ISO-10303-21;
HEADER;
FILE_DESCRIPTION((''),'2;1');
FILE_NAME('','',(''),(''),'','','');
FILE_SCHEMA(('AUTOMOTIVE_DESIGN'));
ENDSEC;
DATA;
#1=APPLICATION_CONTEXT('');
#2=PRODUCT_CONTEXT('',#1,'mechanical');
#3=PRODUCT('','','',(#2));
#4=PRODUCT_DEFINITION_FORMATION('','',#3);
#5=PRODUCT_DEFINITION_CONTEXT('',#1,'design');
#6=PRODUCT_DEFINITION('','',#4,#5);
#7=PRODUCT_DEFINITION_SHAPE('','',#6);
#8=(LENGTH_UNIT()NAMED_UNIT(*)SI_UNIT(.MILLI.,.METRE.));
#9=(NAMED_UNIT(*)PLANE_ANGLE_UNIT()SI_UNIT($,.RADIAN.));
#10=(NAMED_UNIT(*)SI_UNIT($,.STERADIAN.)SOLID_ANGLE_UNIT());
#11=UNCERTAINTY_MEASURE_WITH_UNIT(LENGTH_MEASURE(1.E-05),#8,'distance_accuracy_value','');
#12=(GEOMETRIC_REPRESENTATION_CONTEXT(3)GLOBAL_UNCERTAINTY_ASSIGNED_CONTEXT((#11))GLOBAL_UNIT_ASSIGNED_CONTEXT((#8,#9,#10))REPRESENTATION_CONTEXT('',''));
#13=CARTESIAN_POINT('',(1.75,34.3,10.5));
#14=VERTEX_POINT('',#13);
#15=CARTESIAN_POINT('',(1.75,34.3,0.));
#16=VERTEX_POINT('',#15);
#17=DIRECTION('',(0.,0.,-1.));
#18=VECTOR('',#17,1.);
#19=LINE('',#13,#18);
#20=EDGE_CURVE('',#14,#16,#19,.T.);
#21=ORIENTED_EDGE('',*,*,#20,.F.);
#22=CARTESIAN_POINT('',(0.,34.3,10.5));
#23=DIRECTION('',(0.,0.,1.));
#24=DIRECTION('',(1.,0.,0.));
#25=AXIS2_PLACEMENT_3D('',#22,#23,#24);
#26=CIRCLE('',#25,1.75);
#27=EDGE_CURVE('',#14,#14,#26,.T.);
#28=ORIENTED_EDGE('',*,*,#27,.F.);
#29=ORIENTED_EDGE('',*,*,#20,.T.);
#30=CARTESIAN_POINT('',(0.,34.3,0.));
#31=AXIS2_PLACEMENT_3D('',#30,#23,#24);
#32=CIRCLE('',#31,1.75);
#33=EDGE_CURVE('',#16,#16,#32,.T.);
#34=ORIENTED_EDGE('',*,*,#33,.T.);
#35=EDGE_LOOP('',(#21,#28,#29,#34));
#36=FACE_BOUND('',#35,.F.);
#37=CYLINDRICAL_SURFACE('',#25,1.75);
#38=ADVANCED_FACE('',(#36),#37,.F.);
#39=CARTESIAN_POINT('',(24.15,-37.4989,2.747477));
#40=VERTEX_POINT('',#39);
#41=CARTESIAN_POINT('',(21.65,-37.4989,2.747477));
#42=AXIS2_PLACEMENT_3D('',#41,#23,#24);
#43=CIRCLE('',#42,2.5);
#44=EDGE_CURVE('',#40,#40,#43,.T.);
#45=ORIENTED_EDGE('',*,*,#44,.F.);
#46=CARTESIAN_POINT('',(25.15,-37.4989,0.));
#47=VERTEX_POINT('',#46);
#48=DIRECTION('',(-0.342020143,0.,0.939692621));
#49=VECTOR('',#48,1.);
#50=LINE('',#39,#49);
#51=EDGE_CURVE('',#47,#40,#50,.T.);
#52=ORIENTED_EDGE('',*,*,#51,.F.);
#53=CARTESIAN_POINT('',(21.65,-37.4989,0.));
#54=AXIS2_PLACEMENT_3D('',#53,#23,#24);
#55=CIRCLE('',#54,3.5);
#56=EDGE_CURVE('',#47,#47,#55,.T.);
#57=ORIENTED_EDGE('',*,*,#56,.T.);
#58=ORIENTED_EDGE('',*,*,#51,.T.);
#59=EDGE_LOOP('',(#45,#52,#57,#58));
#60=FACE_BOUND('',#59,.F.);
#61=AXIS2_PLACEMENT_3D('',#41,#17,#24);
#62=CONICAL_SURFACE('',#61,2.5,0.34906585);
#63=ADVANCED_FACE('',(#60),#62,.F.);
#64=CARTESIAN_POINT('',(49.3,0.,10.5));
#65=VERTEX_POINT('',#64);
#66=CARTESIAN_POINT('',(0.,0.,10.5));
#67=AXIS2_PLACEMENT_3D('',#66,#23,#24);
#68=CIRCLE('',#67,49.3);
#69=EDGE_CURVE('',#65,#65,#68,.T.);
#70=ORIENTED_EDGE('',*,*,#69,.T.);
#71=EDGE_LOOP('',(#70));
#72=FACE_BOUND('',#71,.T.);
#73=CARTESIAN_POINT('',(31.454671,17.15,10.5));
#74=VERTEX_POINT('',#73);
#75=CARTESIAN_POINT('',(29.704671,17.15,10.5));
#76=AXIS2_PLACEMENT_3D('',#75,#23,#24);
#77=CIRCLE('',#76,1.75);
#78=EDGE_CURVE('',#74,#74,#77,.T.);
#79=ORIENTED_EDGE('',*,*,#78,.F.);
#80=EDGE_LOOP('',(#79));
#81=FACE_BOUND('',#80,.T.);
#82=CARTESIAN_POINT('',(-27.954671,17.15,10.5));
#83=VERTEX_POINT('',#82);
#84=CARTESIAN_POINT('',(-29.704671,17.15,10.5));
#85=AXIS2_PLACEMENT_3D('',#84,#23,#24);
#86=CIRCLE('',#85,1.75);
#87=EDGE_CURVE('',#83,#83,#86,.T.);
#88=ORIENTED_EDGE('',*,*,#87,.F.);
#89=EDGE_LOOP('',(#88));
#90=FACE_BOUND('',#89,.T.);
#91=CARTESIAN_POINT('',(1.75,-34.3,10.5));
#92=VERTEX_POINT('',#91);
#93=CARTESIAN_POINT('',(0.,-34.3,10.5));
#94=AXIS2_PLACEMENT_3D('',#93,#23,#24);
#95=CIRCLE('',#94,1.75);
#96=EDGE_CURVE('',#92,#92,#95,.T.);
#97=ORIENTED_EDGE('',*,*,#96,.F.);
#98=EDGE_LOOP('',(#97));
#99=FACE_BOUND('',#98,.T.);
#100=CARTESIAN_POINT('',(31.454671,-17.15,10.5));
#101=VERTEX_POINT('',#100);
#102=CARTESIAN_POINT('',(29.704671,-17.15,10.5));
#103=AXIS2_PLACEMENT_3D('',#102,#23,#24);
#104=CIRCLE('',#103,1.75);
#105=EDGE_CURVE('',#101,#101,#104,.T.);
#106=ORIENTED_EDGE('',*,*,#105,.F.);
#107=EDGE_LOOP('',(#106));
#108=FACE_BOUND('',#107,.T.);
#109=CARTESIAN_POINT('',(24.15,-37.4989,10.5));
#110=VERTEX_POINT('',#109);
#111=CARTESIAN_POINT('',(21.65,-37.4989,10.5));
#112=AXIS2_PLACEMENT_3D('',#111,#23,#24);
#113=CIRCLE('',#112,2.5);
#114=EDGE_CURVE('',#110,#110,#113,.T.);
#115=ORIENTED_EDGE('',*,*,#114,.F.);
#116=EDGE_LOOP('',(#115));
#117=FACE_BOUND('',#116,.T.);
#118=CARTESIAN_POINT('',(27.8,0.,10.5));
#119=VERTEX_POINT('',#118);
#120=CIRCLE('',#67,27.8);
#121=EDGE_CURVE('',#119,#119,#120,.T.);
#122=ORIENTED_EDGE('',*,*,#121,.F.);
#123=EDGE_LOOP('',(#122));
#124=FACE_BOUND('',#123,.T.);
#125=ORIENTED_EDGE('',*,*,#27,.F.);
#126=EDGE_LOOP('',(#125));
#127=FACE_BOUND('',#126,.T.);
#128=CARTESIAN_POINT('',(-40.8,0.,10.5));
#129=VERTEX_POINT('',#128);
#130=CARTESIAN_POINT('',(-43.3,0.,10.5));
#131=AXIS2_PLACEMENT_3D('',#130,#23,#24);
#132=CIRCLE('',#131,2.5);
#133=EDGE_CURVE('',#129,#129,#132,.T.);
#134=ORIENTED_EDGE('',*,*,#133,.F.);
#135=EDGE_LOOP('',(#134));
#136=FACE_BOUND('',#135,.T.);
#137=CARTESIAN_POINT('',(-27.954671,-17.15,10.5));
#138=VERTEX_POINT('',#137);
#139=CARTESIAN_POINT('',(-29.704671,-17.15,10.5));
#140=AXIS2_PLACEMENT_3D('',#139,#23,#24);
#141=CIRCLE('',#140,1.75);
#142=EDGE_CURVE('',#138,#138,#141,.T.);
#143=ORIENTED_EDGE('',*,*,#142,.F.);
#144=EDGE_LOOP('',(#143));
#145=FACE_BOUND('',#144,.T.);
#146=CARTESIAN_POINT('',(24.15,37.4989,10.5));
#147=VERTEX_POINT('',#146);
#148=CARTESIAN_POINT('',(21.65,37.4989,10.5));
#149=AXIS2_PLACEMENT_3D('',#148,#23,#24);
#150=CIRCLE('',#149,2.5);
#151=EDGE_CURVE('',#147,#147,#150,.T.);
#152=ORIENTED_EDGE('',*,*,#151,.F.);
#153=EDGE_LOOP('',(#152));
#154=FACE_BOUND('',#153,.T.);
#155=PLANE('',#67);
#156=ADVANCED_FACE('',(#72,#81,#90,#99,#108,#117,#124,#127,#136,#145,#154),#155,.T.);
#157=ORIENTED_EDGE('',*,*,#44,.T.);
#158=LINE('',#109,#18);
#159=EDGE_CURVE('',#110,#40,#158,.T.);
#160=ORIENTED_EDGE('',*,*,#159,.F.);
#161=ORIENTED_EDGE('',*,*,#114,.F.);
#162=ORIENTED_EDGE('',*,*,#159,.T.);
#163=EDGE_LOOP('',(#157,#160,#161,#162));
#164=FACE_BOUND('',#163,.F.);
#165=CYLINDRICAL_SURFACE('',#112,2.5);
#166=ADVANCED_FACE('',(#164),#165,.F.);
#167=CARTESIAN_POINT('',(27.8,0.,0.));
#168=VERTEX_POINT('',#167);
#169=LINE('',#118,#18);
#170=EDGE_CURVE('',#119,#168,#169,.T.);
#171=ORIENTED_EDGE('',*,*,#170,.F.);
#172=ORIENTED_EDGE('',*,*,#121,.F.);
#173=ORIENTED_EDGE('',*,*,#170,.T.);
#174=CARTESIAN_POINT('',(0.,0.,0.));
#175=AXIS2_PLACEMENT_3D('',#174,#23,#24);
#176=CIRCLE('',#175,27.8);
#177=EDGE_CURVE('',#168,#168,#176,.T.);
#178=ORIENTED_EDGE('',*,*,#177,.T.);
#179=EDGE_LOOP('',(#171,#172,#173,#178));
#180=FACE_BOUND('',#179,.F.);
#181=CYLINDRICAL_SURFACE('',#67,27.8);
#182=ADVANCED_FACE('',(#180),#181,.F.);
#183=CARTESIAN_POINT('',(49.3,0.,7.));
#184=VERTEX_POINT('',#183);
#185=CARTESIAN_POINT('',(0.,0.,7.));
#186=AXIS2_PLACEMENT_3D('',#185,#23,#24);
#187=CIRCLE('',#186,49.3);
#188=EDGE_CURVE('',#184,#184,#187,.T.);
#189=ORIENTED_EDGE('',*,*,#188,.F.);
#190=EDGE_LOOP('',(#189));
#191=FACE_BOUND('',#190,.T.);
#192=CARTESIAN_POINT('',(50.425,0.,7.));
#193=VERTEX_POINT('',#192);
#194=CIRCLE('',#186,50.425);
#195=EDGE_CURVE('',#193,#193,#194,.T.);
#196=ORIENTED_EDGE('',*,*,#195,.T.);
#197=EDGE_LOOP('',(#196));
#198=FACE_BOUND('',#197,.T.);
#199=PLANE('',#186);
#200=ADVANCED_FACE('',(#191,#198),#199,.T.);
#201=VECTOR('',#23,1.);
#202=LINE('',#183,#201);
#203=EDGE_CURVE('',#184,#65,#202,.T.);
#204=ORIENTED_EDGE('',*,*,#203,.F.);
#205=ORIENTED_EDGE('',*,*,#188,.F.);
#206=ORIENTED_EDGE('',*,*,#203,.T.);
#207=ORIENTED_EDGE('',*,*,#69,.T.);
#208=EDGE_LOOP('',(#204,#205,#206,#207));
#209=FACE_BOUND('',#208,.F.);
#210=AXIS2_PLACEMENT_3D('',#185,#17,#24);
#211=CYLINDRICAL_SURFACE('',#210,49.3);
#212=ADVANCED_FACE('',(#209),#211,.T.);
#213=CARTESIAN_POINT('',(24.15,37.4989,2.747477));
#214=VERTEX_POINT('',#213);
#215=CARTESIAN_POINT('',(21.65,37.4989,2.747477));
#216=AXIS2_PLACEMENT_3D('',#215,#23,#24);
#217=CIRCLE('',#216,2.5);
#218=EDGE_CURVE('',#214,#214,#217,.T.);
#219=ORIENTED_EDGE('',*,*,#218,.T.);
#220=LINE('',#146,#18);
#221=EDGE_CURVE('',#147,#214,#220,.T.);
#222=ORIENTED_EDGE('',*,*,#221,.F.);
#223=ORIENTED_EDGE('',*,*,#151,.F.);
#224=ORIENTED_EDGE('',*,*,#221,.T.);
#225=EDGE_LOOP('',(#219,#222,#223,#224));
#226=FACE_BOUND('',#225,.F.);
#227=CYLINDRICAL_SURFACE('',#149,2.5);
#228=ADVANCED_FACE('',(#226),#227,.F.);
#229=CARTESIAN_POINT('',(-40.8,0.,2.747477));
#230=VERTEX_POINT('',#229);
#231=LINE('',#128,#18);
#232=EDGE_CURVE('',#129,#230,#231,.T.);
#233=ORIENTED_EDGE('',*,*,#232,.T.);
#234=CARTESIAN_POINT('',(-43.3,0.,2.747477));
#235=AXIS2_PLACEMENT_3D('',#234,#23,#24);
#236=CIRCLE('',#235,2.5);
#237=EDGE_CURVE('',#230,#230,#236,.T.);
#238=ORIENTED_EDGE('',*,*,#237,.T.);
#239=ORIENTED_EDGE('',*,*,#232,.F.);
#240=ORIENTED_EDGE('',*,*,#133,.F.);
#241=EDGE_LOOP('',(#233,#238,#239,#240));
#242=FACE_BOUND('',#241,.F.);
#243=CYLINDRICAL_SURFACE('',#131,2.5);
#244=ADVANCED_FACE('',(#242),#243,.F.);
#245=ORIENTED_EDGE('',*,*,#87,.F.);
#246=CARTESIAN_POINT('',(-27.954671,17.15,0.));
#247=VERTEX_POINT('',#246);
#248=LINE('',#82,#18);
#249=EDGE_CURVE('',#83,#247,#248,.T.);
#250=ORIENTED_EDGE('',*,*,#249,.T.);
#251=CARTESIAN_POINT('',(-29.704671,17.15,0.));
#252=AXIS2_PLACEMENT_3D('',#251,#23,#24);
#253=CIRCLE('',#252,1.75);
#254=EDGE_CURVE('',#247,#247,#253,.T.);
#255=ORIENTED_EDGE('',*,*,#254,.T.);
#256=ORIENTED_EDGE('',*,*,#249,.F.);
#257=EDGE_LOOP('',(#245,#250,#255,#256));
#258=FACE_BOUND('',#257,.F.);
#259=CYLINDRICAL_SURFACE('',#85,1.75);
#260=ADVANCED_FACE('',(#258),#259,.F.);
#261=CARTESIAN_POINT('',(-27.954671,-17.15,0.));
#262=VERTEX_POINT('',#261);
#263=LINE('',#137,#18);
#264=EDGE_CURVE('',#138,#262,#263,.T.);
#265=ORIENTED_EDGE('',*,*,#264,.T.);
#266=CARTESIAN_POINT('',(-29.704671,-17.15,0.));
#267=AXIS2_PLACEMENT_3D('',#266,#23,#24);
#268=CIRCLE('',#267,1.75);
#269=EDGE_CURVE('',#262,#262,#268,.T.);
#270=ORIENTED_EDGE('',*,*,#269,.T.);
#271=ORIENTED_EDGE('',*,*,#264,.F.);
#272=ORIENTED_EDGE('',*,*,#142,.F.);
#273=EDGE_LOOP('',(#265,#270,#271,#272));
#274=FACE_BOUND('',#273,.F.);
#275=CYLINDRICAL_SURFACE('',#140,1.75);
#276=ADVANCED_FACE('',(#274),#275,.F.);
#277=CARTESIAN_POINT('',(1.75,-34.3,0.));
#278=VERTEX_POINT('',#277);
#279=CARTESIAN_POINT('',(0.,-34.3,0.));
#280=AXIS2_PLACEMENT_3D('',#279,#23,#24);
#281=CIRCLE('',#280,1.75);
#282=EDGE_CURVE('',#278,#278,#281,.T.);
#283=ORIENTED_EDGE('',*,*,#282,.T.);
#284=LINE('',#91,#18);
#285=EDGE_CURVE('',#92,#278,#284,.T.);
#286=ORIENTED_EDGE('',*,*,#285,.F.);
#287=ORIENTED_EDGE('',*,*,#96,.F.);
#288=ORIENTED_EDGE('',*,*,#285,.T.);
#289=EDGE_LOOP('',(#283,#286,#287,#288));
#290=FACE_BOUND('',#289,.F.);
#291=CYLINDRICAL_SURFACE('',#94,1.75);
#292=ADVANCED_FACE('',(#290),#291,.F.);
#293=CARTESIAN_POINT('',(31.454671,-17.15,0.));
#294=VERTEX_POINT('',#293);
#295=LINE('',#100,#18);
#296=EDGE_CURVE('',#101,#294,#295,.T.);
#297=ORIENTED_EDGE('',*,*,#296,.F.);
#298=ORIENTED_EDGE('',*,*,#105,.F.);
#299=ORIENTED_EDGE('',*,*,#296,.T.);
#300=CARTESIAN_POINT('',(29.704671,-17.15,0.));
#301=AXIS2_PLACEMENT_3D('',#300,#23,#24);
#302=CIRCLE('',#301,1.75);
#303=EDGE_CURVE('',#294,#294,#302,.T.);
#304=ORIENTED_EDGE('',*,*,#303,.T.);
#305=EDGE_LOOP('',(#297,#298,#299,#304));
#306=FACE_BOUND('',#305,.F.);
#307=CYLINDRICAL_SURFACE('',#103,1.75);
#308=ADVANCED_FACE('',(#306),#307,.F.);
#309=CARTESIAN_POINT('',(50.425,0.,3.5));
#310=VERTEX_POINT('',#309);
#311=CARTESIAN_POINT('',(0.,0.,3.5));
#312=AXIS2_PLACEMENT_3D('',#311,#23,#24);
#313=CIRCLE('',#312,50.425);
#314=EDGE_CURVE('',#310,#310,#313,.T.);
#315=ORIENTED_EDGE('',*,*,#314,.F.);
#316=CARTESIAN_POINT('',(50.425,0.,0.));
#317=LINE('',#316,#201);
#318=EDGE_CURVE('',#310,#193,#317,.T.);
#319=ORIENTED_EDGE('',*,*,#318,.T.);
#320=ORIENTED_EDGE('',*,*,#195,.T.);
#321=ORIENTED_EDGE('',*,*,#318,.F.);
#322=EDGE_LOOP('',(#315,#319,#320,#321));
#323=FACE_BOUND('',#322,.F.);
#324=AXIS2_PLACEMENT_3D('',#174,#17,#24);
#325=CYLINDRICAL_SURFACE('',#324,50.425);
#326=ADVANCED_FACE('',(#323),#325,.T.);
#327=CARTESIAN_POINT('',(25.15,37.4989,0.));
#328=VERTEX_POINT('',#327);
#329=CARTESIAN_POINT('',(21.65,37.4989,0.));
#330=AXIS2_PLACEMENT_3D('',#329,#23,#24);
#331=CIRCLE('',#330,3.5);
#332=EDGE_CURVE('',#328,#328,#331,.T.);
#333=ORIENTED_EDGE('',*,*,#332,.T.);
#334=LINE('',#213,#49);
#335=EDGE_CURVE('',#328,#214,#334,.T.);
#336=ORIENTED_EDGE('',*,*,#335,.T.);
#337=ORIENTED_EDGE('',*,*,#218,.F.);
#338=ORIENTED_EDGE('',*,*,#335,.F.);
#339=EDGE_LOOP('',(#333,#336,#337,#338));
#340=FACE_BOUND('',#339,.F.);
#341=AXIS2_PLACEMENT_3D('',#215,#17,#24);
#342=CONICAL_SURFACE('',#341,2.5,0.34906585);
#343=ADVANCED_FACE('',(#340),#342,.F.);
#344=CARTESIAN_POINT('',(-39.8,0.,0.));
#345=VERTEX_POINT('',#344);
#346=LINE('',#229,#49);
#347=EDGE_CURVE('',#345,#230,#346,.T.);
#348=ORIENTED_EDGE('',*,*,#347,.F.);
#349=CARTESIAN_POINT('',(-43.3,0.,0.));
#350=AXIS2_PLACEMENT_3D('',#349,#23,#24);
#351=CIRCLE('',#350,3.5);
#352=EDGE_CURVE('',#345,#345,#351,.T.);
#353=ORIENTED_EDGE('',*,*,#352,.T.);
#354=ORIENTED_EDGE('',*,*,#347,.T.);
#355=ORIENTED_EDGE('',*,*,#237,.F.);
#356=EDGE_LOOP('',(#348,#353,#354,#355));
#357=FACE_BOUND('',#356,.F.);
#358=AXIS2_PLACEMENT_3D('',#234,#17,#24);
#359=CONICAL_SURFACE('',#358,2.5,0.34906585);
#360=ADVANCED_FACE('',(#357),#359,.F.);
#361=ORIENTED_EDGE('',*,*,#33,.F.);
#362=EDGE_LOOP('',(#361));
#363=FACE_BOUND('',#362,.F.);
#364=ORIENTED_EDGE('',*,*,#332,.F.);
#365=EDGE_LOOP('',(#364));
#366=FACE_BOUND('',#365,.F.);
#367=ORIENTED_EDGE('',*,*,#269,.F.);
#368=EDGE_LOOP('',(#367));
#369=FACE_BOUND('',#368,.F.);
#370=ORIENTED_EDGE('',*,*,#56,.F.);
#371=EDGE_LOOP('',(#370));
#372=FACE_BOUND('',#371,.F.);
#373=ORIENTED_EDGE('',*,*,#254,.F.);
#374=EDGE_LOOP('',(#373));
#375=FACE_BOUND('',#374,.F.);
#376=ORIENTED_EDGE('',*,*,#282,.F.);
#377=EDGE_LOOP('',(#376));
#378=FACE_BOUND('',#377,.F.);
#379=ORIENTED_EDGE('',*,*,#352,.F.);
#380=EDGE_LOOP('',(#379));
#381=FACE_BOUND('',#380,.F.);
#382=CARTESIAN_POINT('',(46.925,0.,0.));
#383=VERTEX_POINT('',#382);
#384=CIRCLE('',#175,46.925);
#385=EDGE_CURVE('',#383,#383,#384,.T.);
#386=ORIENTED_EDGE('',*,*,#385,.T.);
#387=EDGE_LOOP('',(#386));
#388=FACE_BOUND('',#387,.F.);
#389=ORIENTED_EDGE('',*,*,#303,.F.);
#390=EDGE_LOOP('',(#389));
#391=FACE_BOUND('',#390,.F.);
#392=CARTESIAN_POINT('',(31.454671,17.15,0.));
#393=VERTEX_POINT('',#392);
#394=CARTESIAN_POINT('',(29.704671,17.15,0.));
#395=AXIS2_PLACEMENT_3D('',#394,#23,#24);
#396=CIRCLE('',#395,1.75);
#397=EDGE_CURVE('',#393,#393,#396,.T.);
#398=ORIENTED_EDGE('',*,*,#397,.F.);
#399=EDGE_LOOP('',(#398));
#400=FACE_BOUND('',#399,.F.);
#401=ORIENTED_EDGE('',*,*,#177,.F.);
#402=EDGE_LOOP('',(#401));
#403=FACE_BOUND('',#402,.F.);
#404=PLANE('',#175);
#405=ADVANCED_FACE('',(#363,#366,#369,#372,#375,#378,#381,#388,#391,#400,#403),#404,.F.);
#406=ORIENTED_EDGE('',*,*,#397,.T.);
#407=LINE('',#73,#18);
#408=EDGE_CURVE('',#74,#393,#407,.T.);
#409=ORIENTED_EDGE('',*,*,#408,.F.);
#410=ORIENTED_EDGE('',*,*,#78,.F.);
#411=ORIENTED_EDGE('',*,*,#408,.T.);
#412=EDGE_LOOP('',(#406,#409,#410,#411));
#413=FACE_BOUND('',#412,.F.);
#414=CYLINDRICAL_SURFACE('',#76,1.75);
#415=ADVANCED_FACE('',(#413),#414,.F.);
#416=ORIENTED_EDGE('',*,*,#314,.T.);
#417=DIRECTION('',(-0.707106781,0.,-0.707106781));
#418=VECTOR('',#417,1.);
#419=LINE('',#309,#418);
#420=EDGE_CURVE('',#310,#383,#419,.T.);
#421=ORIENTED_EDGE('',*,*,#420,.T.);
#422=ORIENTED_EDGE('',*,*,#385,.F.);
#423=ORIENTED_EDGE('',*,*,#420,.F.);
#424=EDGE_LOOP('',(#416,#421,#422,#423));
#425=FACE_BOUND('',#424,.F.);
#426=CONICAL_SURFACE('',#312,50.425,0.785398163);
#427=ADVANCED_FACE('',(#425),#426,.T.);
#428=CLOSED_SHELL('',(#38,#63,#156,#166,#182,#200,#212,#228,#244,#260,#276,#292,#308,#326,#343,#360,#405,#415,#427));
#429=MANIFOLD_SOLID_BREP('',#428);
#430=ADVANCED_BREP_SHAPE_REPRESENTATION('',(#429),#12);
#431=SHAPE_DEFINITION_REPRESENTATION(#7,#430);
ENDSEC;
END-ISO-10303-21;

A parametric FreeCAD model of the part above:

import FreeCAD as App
import Part
import Sketcher
Q = App.Units.Quantity


def edges_at(feature, points):
    """Names of the edges that pass closest to the given points."""
    edges = feature.Shape.Edges
    near = lambda p: min(range(len(edges)), key=lambda i: edges[i].distToShape(Part.Vertex(*p))[0])
    return sorted({f"Edge{near(p) + 1}" for p in points})

doc = App.newDocument("Part")
params = doc.addObject("Spreadsheet::Sheet", "Params")
for row, (alias, value) in enumerate([
    ("sketch1_diameter", "100.85 mm"),
    ("pad1_length", "7 mm"),
    ("sketch2_diameter", "98.6 mm"),
    ("pad2_length", "3.5 mm"),
    ("chamfer_size", "3.5 mm"),
    ("sketch3_diameter", "5 mm"),
    ("sketch3_diameter2", "55.6 mm"),
    ("sketch3_diameter3", "3.5 mm"),
    ("chamfer2_size", "1 mm"),
], start=1):
    params.set(f"A{row}", alias)
    params.set(f"B{row}", "=" + value)
    params.setAlias(f"B{row}", alias)

body = doc.addObject("PartDesign::Body", "Body")

sketch1 = body.newObject("Sketcher::SketchObject", "Sketch")
sketch1.AttachmentSupport = (doc.getObject("XY_Plane"), [""])
sketch1.MapMode = "FlatFace"
sketch1.addGeometry(Part.Circle(App.Vector(0, 0, 0), App.Vector(0, 0, 1), 50), False)
sketch1.addConstraint(Sketcher.Constraint("Coincident", 0, 3, -1, 1))
sketch1.addConstraint(Sketcher.Constraint("Diameter", 0, Q("100.85 mm")))
sketch1.setExpression("Constraints[1]", "Params.sketch1_diameter")
pad1 = body.newObject("PartDesign::Pad", "Pad")
pad1.Profile = sketch1
pad1.setExpression("Length", "Params.pad1_length")

sketch2 = body.newObject("Sketcher::SketchObject", "Sketch001")
sketch2.AttachmentSupport = (doc.getObject("XY_Plane"), [""])
sketch2.MapMode = "FlatFace"
sketch2.AttachmentOffset = App.Placement(App.Vector(0, 0, 7), App.Rotation())
sketch2.addGeometry(Part.Circle(App.Vector(0, 0, 0), App.Vector(0, 0, 1), 49), False)
sketch2.addConstraint(Sketcher.Constraint("Coincident", 0, 3, -1, 1))
sketch2.addConstraint(Sketcher.Constraint("Diameter", 0, Q("98.6 mm")))
sketch2.setExpression("Constraints[1]", "Params.sketch2_diameter")
pad2 = body.newObject("PartDesign::Pad", "Pad001")
pad2.Profile = sketch2
pad2.setExpression("Length", "Params.pad2_length")
doc.recompute()

chamfer = body.newObject("PartDesign::Chamfer", "Chamfer")
chamfer.Base = (pad2, edges_at(pad2, [(-50.425, 0, 0)]))
chamfer.setExpression("Size", "Params.chamfer_size")

sketch3 = body.newObject("Sketcher::SketchObject", "Sketch002")
sketch3.AttachmentSupport = (doc.getObject("XY_Plane"), [""])
sketch3.MapMode = "FlatFace"
sketch3.AttachmentOffset = App.Placement(App.Vector(0, 0, 10.5), App.Rotation())
sketch3.addGeometry(Part.Circle(App.Vector(0, 0, 0), App.Vector(0, 0, 1), 27.8), False)
sketch3.addGeometry(Part.Circle(App.Vector(-43.3, 0, 0), App.Vector(0, 0, 1), 2.5), False)
sketch3.addGeometry(Part.Circle(App.Vector(21.6, 37.5, 0), App.Vector(0, 0, 1), 2.5), False)
sketch3.addGeometry(Part.Circle(App.Vector(21.6, -37.5, 0), App.Vector(0, 0, 1), 2.5), False)
sketch3.addGeometry(Part.Circle(App.Vector(-29.7, 17.1, 0), App.Vector(0, 0, 1), 1.8), False)
sketch3.addGeometry(Part.Circle(App.Vector(0, 34.3, 0), App.Vector(0, 0, 1), 1.8), False)
sketch3.addGeometry(Part.Circle(App.Vector(29.7, 17.1, 0), App.Vector(0, 0, 1), 1.8), False)
sketch3.addGeometry(Part.Circle(App.Vector(29.7, -17.1, 0), App.Vector(0, 0, 1), 1.8), False)
sketch3.addGeometry(Part.Circle(App.Vector(0, -34.3, 0), App.Vector(0, 0, 1), 1.8), False)
sketch3.addGeometry(Part.Circle(App.Vector(-29.7, -17.1, 0), App.Vector(0, 0, 1), 1.8), False)
sketch3.addConstraint(Sketcher.Constraint("Coincident", 0, 3, -1, 1))
sketch3.addConstraint(Sketcher.Constraint("Equal", 1, 2))
sketch3.addConstraint(Sketcher.Constraint("Equal", 2, 3))
sketch3.addConstraint(Sketcher.Constraint("Equal", 4, 5))
sketch3.addConstraint(Sketcher.Constraint("Equal", 5, 6))
sketch3.addConstraint(Sketcher.Constraint("Equal", 6, 7))
sketch3.addConstraint(Sketcher.Constraint("Equal", 7, 8))
sketch3.addConstraint(Sketcher.Constraint("Equal", 8, 9))
sketch3.addConstraint(Sketcher.Constraint("Symmetric", 4, 3, 7, 3, -1, 1))
sketch3.addConstraint(Sketcher.Constraint("Symmetric", 5, 3, 8, 3, -1, 1))
sketch3.addConstraint(Sketcher.Constraint("Symmetric", 6, 3, 9, 3, -1, 1))
sketch3.addConstraint(Sketcher.Constraint("Symmetric", 4, 3, 6, 3, -2))
sketch3.addConstraint(Sketcher.Constraint("Symmetric", 2, 3, 3, 3, -1))
sketch3.addConstraint(Sketcher.Constraint("PointOnObject", 1, 3, -1))
sketch3.addConstraint(Sketcher.Constraint("PointOnObject", 5, 3, -2))
sketch3.addConstraint(Sketcher.Constraint("Diameter", 1, Q("5 mm")))
sketch3.addConstraint(Sketcher.Constraint("Diameter", 0, Q("55.6 mm")))
sketch3.addConstraint(Sketcher.Constraint("Diameter", 4, Q("3.5 mm")))
sketch3.addConstraint(Sketcher.Constraint("DistanceX", 1, 3, -1, 1, Q("43.3 mm")))
sketch3.addConstraint(Sketcher.Constraint("DistanceY", -1, 1, 5, 3, Q("34.3 mm")))
sketch3.addConstraint(Sketcher.Constraint("DistanceY", 7, 3, 6, 3, Q("34.3 mm")))
sketch3.addConstraint(Sketcher.Constraint("DistanceX", -1, 1, 2, 3, Q("21.65 mm")))
sketch3.addConstraint(Sketcher.Constraint("DistanceY", -1, 1, 2, 3, Q("37.4989 mm")))
sketch3.addConstraint(Sketcher.Constraint("DistanceX", 4, 3, -1, 1, Q("29.704671 mm")))
sketch3.setExpression("Constraints[15]", "Params.sketch3_diameter")
sketch3.setExpression("Constraints[16]", "Params.sketch3_diameter2")
sketch3.setExpression("Constraints[17]", "Params.sketch3_diameter3")
pocket1 = body.newObject("PartDesign::Pocket", "Pocket")
pocket1.Profile = sketch3
pocket1.Type = "ThroughAll"
doc.recompute()

chamfer2 = body.newObject("PartDesign::Chamfer", "Chamfer001")
chamfer2.Base = (pocket1, edges_at(pocket1, [(19.15, -37.499, 0), (-45.8, 0, 0), (19.15, 37.499, 0)]))
chamfer2.ChamferType = "Distance and Angle"
chamfer2.setExpression("Size", "Params.chamfer2_size")
chamfer2.Angle = 70

doc.recompute()
